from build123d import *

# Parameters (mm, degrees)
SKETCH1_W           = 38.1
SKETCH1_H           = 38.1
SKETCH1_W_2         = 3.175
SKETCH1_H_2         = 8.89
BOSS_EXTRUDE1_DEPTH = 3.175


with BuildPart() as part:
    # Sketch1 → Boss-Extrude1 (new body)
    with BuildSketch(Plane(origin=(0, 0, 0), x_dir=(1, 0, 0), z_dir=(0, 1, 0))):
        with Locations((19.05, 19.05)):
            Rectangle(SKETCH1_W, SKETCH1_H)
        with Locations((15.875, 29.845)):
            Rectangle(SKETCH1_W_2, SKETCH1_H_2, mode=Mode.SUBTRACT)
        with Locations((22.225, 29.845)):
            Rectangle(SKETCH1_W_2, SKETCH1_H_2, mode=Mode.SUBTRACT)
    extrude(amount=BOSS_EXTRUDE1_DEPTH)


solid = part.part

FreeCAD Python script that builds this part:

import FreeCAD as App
import Part
import Sketcher

V = App.Vector
Q = App.Units.Quantity

doc = App.newDocument("Part")
body = doc.addObject("PartDesign::Body", "Body")

sketch1 = body.newObject("Sketcher::SketchObject", "Sketch")
sketch1.AttachmentSupport = (doc.getObject("XZ_Plane"), [""])
sketch1.MapMode = "FlatFace"
sketch1.addGeometry(Part.LineSegment(V(0, -38.1, 0), V(0, 0, 0)), False)
sketch1.addGeometry(Part.LineSegment(V(0, 0, 0), V(38.1, 0, 0)), False)
sketch1.addGeometry(Part.LineSegment(V(38.1, 0, 0), V(38.1, -38.1, 0)), False)
sketch1.addGeometry(Part.LineSegment(V(38.1, -38.1, 0), V(0, -38.1, 0)), False)
sketch1.addGeometry(Part.LineSegment(V(17.4625, -25.4, 0), V(14.2875, -25.4, 0)), False)
sketch1.addGeometry(Part.LineSegment(V(14.2875, -25.4, 0), V(14.2875, -34.29, 0)), False)
sketch1.addGeometry(Part.LineSegment(V(14.2875, -34.29, 0), V(17.4625, -34.29, 0)), False)
sketch1.addGeometry(Part.LineSegment(V(17.4625, -34.29, 0), V(17.4625, -25.4, 0)), False)
sketch1.addGeometry(Part.LineSegment(V(23.8125, -25.4, 0), V(20.6375, -25.4, 0)), False)
sketch1.addGeometry(Part.LineSegment(V(20.6375, -25.4, 0), V(20.6375, -34.29, 0)), False)
sketch1.addGeometry(Part.LineSegment(V(20.6375, -34.29, 0), V(23.8125, -34.29, 0)), False)
sketch1.addGeometry(Part.LineSegment(V(23.8125, -34.29, 0), V(23.8125, -25.4, 0)), False)
sketch1.addConstraint(Sketcher.Constraint("Coincident", 0, 2, 1, 1))
sketch1.addConstraint(Sketcher.Constraint("Coincident", 1, 2, 2, 1))
sketch1.addConstraint(Sketcher.Constraint("Coincident", 2, 2, 3, 1))
sketch1.addConstraint(Sketcher.Constraint("Coincident", 3, 2, 0, 1))
sketch1.addConstraint(Sketcher.Constraint("Coincident", 4, 2, 5, 1))
sketch1.addConstraint(Sketcher.Constraint("Coincident", 5, 2, 6, 1))
sketch1.addConstraint(Sketcher.Constraint("Coincident", 6, 2, 7, 1))
sketch1.addConstraint(Sketcher.Constraint("Coincident", 7, 2, 4, 1))
sketch1.addConstraint(Sketcher.Constraint("Coincident", 8, 2, 9, 1))
sketch1.addConstraint(Sketcher.Constraint("Coincident", 9, 2, 10, 1))
sketch1.addConstraint(Sketcher.Constraint("Coincident", 10, 2, 11, 1))
sketch1.addConstraint(Sketcher.Constraint("Coincident", 11, 2, 8, 1))
sketch1.addConstraint(Sketcher.Constraint("Vertical", 0))
sketch1.addConstraint(Sketcher.Constraint("Horizontal", 1))
sketch1.addConstraint(Sketcher.Constraint("Vertical", 2))
sketch1.addConstraint(Sketcher.Constraint("Horizontal", 3))
sketch1.addConstraint(Sketcher.Constraint("Horizontal", 4))
sketch1.addConstraint(Sketcher.Constraint("Vertical", 5))
sketch1.addConstraint(Sketcher.Constraint("Horizontal", 6))
sketch1.addConstraint(Sketcher.Constraint("Vertical", 7))
sketch1.addConstraint(Sketcher.Constraint("Horizontal", 8))
sketch1.addConstraint(Sketcher.Constraint("Vertical", 9))
sketch1.addConstraint(Sketcher.Constraint("Horizontal", 10))
sketch1.addConstraint(Sketcher.Constraint("Vertical", 11))
sketch1.addConstraint(Sketcher.Constraint("Coincident", 0, 2, -1, 1))
sketch1.addConstraint(Sketcher.Constraint("Horizontal", 7, 2, 8, 2))
sketch1.addConstraint(Sketcher.Constraint("Horizontal", 6, 2, 9, 2))
sketch1.addConstraint(Sketcher.Constraint("Equal", 6, 8))
sketch1.addConstraint(Sketcher.Constraint("Equal", 3, 0))
sketch1.addConstraint(Sketcher.Constraint("DistanceX", 1, 1, 1, 2, Q("1.5 in")))
sketch1.addConstraint(Sketcher.Constraint("DistanceY", 4, 2, -1, 1, Q("1 in")))
sketch1.addConstraint(Sketcher.Constraint("DistanceY", 5, 2, 5, 1, Q("0.35 in")))
sketch1.addConstraint(Sketcher.Constraint("DistanceX", 4, 2, 4, 1, Q("0.125 in")))
sketch1.addConstraint(Sketcher.Constraint("DistanceX", 4, 2, 8, 2, Q("0.25 in")))
sketch1.addConstraint(Sketcher.Constraint("DistanceX", -1, 1, 4, 2, Q("0.5625 in")))
pad1 = body.newObject("PartDesign::Pad", "Pad")
pad1.Profile = sketch1
pad1.Length = Q("0.125 in")
pad1.Reversed = True

doc.recompute()
